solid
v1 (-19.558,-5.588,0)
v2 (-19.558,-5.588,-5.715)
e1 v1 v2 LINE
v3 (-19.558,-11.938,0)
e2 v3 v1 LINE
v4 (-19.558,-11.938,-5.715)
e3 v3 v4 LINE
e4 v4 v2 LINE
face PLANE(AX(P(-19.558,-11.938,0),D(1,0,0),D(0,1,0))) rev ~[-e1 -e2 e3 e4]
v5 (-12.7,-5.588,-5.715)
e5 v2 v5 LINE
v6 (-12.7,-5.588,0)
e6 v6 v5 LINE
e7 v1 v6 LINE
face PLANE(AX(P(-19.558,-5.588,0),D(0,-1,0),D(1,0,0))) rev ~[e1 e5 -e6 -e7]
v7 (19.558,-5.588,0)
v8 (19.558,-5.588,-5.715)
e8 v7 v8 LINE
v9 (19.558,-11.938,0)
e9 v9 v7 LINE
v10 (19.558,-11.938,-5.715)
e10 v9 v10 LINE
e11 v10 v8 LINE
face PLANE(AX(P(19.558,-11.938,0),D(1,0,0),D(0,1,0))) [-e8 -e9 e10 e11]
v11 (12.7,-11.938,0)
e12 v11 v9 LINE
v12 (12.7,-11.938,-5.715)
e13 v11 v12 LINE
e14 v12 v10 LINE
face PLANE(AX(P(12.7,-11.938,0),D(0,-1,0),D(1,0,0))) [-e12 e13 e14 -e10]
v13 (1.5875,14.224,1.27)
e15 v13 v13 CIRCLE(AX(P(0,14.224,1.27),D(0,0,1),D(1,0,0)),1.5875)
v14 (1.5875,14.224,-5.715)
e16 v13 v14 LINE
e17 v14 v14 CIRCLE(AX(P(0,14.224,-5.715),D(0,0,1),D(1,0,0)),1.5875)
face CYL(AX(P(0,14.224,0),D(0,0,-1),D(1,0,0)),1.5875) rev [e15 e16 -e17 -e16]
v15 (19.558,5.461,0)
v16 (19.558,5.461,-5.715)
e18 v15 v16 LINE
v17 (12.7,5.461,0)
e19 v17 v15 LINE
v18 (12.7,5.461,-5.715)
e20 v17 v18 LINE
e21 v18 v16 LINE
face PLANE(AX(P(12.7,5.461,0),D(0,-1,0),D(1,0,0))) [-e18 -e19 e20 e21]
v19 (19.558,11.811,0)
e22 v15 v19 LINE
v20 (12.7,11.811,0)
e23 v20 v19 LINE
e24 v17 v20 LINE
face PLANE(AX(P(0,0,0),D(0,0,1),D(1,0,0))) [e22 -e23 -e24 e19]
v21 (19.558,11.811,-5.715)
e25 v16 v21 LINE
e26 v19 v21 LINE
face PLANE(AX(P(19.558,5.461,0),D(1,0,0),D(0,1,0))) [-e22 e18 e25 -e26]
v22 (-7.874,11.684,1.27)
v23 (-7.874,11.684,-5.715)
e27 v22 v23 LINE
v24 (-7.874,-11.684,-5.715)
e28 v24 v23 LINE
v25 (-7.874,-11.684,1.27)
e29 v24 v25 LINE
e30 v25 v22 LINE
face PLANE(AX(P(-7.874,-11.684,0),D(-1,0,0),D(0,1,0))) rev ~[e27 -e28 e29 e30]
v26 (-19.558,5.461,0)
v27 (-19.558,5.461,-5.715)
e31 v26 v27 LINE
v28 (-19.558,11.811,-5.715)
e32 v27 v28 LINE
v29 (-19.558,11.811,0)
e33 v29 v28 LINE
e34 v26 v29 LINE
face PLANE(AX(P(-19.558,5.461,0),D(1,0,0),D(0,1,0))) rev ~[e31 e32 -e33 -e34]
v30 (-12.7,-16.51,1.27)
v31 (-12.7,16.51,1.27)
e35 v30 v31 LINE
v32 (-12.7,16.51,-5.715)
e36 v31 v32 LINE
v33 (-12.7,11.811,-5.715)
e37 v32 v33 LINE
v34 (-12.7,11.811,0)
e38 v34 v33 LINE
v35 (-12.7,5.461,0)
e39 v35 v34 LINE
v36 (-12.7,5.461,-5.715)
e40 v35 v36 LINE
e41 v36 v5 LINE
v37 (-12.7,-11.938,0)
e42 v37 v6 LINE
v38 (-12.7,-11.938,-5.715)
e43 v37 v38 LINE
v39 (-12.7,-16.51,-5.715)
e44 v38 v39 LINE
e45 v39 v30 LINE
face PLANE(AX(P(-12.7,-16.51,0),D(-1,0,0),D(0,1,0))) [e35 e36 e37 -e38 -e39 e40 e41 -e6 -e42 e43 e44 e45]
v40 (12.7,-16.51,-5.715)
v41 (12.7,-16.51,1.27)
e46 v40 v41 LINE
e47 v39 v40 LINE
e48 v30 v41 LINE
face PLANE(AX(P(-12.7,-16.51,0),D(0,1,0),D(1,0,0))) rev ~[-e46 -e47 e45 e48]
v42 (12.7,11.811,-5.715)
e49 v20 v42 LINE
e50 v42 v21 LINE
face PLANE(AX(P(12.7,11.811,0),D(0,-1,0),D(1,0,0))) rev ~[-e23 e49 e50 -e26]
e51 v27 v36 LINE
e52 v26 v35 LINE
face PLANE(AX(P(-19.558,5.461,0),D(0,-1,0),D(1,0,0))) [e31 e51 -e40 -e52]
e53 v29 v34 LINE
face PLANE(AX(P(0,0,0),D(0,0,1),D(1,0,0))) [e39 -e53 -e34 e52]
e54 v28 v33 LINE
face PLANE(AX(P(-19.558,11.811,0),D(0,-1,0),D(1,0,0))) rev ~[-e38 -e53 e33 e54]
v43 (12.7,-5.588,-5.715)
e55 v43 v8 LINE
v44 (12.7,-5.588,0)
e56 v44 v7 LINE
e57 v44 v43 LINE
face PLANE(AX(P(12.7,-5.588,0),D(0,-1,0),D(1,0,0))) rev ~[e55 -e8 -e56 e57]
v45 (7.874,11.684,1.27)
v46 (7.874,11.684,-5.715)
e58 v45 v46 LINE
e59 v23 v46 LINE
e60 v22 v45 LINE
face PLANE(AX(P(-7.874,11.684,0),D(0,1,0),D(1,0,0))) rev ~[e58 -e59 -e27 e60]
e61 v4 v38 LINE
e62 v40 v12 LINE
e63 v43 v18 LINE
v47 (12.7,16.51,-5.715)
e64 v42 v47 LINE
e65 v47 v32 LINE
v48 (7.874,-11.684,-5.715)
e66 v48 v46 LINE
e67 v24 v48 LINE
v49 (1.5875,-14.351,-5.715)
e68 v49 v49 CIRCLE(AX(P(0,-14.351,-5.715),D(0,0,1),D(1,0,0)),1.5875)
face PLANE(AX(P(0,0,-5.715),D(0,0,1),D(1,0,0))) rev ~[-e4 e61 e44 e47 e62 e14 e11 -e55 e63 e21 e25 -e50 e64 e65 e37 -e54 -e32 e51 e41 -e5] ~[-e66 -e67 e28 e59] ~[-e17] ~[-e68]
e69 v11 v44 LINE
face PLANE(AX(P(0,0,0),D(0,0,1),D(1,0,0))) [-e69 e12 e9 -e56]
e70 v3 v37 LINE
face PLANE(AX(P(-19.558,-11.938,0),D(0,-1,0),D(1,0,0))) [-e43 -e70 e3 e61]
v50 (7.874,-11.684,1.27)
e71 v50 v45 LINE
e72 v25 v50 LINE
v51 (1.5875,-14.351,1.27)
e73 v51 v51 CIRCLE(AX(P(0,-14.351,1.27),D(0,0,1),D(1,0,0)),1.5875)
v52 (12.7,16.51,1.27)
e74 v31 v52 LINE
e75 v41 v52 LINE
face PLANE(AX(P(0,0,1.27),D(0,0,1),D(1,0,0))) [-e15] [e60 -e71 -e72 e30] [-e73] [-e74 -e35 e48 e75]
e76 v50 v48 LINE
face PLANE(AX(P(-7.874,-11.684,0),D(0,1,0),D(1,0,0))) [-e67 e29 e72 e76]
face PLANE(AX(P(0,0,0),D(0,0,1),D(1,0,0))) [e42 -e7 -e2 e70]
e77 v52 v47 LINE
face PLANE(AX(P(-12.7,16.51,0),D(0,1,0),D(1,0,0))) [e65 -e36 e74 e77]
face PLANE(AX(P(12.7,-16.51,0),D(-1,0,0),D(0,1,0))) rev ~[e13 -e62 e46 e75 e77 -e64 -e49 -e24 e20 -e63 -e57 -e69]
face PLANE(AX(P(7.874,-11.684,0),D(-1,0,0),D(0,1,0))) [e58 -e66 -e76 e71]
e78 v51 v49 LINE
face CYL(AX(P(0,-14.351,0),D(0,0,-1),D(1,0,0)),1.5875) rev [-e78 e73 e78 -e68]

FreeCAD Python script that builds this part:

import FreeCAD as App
import Part
import Sketcher
from FreeCAD import Vector
Q = App.Units.Quantity

doc = App.newDocument("Part")
body = doc.addObject("PartDesign::Body", "Body")

sketch1 = body.newObject("Sketcher::SketchObject", "Sketch")
sketch1.AttachmentSupport = (doc.getObject("XY_Plane"), [""])
sketch1.MapMode = "FlatFace"
sketch1.addGeometry([
    Part.LineSegment(Vector(12.7, 16.5, 0), Vector(-12.7, 16.5, 0)),
    Part.LineSegment(Vector(-12.7, 16.5, 0), Vector(-12.7, 11.8, 0)),
    Part.LineSegment(Vector(-12.7, 11.8, 0), Vector(-19.6, 11.8, 0)),
    Part.LineSegment(Vector(-19.6, 11.8, 0), Vector(-19.6, 5.5, 0)),
    Part.LineSegment(Vector(-19.6, 5.5, 0), Vector(-12.7, 5.5, 0)),
    Part.LineSegment(Vector(-12.7, 5.5, 0), Vector(-12.7, -5.6, 0)),
    Part.LineSegment(Vector(-12.7, -5.6, 0), Vector(-19.6, -5.6, 0)),
    Part.LineSegment(Vector(-19.6, -5.6, 0), Vector(-19.6, -11.9, 0)),
    Part.LineSegment(Vector(-19.6, -11.9, 0), Vector(-12.7, -11.9, 0)),
    Part.LineSegment(Vector(-12.7, -11.9, 0), Vector(-12.7, -16.5, 0)),
    Part.LineSegment(Vector(-12.7, -16.5, 0), Vector(12.7, -16.5, 0)),
    Part.LineSegment(Vector(12.7, -16.5, 0), Vector(12.7, -11.9, 0)),
    Part.LineSegment(Vector(12.7, -11.9, 0), Vector(19.6, -11.9, 0)),
    Part.LineSegment(Vector(19.6, -11.9, 0), Vector(19.6, -5.6, 0)),
    Part.LineSegment(Vector(19.6, -5.6, 0), Vector(12.7, -5.6, 0)),
    Part.LineSegment(Vector(12.7, -5.6, 0), Vector(12.7, 5.5, 0)),
    Part.LineSegment(Vector(12.7, 5.5, 0), Vector(19.6, 5.5, 0)),
    Part.LineSegment(Vector(19.6, 5.5, 0), Vector(19.6, 11.8, 0)),
    Part.LineSegment(Vector(19.6, 11.8, 0), Vector(12.7, 11.8, 0)),
    Part.LineSegment(Vector(12.7, 11.8, 0), Vector(12.7, 16.5, 0)),
    Part.Circle(Vector(0, -14.4, 0), Vector(0, 0, 1), 1.6),
    Part.LineSegment(Vector(7.9, -11.7, 0), Vector(-7.9, -11.7, 0)),
    Part.LineSegment(Vector(-7.9, -11.7, 0), Vector(-7.9, 11.7, 0)),
    Part.LineSegment(Vector(-7.9, 11.7, 0), Vector(7.9, 11.7, 0)),
    Part.LineSegment(Vector(7.9, 11.7, 0), Vector(7.9, -11.7, 0)),
    Part.Circle(Vector(0, 14.2, 0), Vector(0, 0, 1), 1.6),
], False)
sketch1.addConstraint([
    Sketcher.Constraint("Coincident", 0, 2, 1, 1),
    Sketcher.Constraint("Coincident", 1, 2, 2, 1),
    Sketcher.Constraint("Coincident", 2, 2, 3, 1),
    Sketcher.Constraint("Coincident", 3, 2, 4, 1),
    Sketcher.Constraint("Coincident", 4, 2, 5, 1),
    Sketcher.Constraint("Coincident", 5, 2, 6, 1),
    Sketcher.Constraint("Coincident", 6, 2, 7, 1),
    Sketcher.Constraint("Coincident", 7, 2, 8, 1),
    Sketcher.Constraint("Coincident", 8, 2, 9, 1),
    Sketcher.Constraint("Coincident", 9, 2, 10, 1),
    Sketcher.Constraint("Coincident", 10, 2, 11, 1),
    Sketcher.Constraint("Coincident", 11, 2, 12, 1),
    Sketcher.Constraint("Coincident", 12, 2, 13, 1),
    Sketcher.Constraint("Coincident", 13, 2, 14, 1),
    Sketcher.Constraint("Coincident", 14, 2, 15, 1),
    Sketcher.Constraint("Coincident", 15, 2, 16, 1),
    Sketcher.Constraint("Coincident", 16, 2, 17, 1),
    Sketcher.Constraint("Coincident", 17, 2, 18, 1),
    Sketcher.Constraint("Coincident", 18, 2, 19, 1),
    Sketcher.Constraint("Coincident", 19, 2, 0, 1),
    Sketcher.Constraint("Coincident", 21, 2, 22, 1),
    Sketcher.Constraint("Coincident", 22, 2, 23, 1),
    Sketcher.Constraint("Coincident", 23, 2, 24, 1),
    Sketcher.Constraint("Coincident", 24, 2, 21, 1),
    Sketcher.Constraint("Horizontal", 0),
    Sketcher.Constraint("Vertical", 1),
    Sketcher.Constraint("Horizontal", 2),
    Sketcher.Constraint("Vertical", 3),
    Sketcher.Constraint("Horizontal", 4),
    Sketcher.Constraint("Vertical", 5),
    Sketcher.Constraint("Horizontal", 6),
    Sketcher.Constraint("Vertical", 7),
    Sketcher.Constraint("Horizontal", 8),
    Sketcher.Constraint("Vertical", 9),
    Sketcher.Constraint("Horizontal", 10),
    Sketcher.Constraint("Vertical", 11),
    Sketcher.Constraint("Horizontal", 12),
    Sketcher.Constraint("Vertical", 13),
    Sketcher.Constraint("Horizontal", 14),
    Sketcher.Constraint("Vertical", 15),
    Sketcher.Constraint("Horizontal", 16),
    Sketcher.Constraint("Vertical", 17),
    Sketcher.Constraint("Horizontal", 18),
    Sketcher.Constraint("Vertical", 19),
    Sketcher.Constraint("Horizontal", 21),
    Sketcher.Constraint("Vertical", 22),
    Sketcher.Constraint("Horizontal", 23),
    Sketcher.Constraint("Vertical", 24),
    Sketcher.Constraint("Equal", 20, 25),
    Sketcher.Constraint("Symmetric", 0, 2, 10, 2, -1, 1),
    Sketcher.Constraint("Symmetric", 21, 2, 23, 2, -1, 1),
    Sketcher.Constraint("Symmetric", 8, 2, 11, 2, -2),
    Sketcher.Constraint("Symmetric", 6, 2, 13, 2, -2),
    Sketcher.Constraint("Symmetric", 4, 2, 15, 2, -2),
    Sketcher.Constraint("Symmetric", 2, 2, 17, 2, -2),
    Sketcher.Constraint("PointOnObject", 20, 3, -2),
    Sketcher.Constraint("PointOnObject", 25, 3, -2),
    Sketcher.Constraint("Vertical", 1, 2, 4, 2),
    Sketcher.Constraint("Vertical", 3, 2, 6, 2),
    Sketcher.Constraint("Vertical", 15, 2, 18, 2),
    Sketcher.Constraint("Equal", 3, 7),
    Sketcher.Constraint("DistanceX", 0, 2, 0, 1, Q("1 in")),
    Sketcher.Constraint("Diameter", 20, Q("0.125 in")),
    Sketcher.Constraint("DistanceX", 2, 2, 2, 1, Q("0.27 in")),
    Sketcher.Constraint("DistanceX", 21, 2, 21, 1, Q("0.62 in")),
    Sketcher.Constraint("DistanceY", 3, 2, 3, 1, Q("0.25 in")),
    Sketcher.Constraint("DistanceY", 9, 2, 9, 1, Q("0.18 in")),
    Sketcher.Constraint("DistanceY", 22, 1, 22, 2, Q("0.92 in")),
    Sketcher.Constraint("DistanceY", 22, 2, 25, 3, Q("0.1 in")),
    Sketcher.Constraint("DistanceY", 1, 2, 1, 1, Q("0.185 in")),
    Sketcher.Constraint("DistanceY", 5, 2, 5, 1, Q("0.435 in")),
    Sketcher.Constraint("DistanceY", 20, 3, 1, 2, Q("1.03 in")),
])
pad1 = body.newObject("PartDesign::Pad", "Pad")
pad1.Profile = sketch1
pad1.Length = Q("0.225 in")
pad1.Reversed = True

sketch2 = body.newObject("Sketcher::SketchObject", "Sketch001")
sketch2.AttachmentSupport = (doc.getObject("XY_Plane"), [""])
sketch2.MapMode = "FlatFace"
sketch2.addGeometry([
    Part.LineSegment(Vector(-12.7, 16.5, 0), Vector(-12.7, -16.5, 0)),
    Part.LineSegment(Vector(-12.7, -16.5, 0), Vector(12.7, -16.5, 0)),
    Part.LineSegment(Vector(12.7, -16.5, 0), Vector(12.7, 16.5, 0)),
    Part.LineSegment(Vector(12.7, 16.5, 0), Vector(-12.7, 16.5, 0)),
    Part.Circle(Vector(0, -14.4, 0), Vector(0, 0, 1), 1.6),
    Part.LineSegment(Vector(7.9, -11.7, 0), Vector(-7.9, -11.7, 0)),
    Part.LineSegment(Vector(-7.9, -11.7, 0), Vector(-7.9, 11.7, 0)),
    Part.LineSegment(Vector(-7.9, 11.7, 0), Vector(7.9, 11.7, 0)),
    Part.LineSegment(Vector(7.9, 11.7, 0), Vector(7.9, -11.7, 0)),
    Part.Circle(Vector(0, 14.2, 0), Vector(0, 0, 1), 1.6),
], False)
sketch2.addConstraint([
    Sketcher.Constraint("Coincident", 0, 2, 1, 1),
    Sketcher.Constraint("Coincident", 1, 2, 2, 1),
    Sketcher.Constraint("Coincident", 2, 2, 3, 1),
    Sketcher.Constraint("Coincident", 3, 2, 0, 1),
    Sketcher.Constraint("Coincident", 5, 2, 6, 1),
    Sketcher.Constraint("Coincident", 6, 2, 7, 1),
    Sketcher.Constraint("Coincident", 7, 2, 8, 1),
    Sketcher.Constraint("Coincident", 8, 2, 5, 1),
    Sketcher.Constraint("Vertical", 0),
    Sketcher.Constraint("Horizontal", 1),
    Sketcher.Constraint("Vertical", 2),
    Sketcher.Constraint("Horizontal", 3),
    Sketcher.Constraint("Horizontal", 5),
    Sketcher.Constraint("Vertical", 6),
    Sketcher.Constraint("Horizontal", 7),
    Sketcher.Constraint("Vertical", 8),
    Sketcher.Constraint("Equal", 4, 9),
    Sketcher.Constraint("Symmetric", 0, 2, 2, 2, -1, 1),
    Sketcher.Constraint("Symmetric", 5, 2, 7, 2, -1, 1),
    Sketcher.Constraint("PointOnObject", 4, 3, -2),
    Sketcher.Constraint("PointOnObject", 9, 3, -2),
    Sketcher.Constraint("DistanceX", 1, 1, 1, 2, Q("1 in")),
    Sketcher.Constraint("Diameter", 4, Q("0.125 in")),
    Sketcher.Constraint("DistanceY", 0, 2, 0, 1, Q("1.3 in")),
    Sketcher.Constraint("DistanceX", 5, 2, 5, 1, Q("0.62 in")),
    Sketcher.Constraint("DistanceY", 6, 1, 6, 2, Q("0.92 in")),
    Sketcher.Constraint("DistanceY", 6, 2, 9, 3, Q("0.1 in")),
    Sketcher.Constraint("DistanceY", 4, 3, -1, 1, Q("0.565 in")),
])
pad2 = body.newObject("PartDesign::Pad", "Pad001")
pad2.Profile = sketch2
pad2.Length = Q("0.05 in")

doc.recompute()
